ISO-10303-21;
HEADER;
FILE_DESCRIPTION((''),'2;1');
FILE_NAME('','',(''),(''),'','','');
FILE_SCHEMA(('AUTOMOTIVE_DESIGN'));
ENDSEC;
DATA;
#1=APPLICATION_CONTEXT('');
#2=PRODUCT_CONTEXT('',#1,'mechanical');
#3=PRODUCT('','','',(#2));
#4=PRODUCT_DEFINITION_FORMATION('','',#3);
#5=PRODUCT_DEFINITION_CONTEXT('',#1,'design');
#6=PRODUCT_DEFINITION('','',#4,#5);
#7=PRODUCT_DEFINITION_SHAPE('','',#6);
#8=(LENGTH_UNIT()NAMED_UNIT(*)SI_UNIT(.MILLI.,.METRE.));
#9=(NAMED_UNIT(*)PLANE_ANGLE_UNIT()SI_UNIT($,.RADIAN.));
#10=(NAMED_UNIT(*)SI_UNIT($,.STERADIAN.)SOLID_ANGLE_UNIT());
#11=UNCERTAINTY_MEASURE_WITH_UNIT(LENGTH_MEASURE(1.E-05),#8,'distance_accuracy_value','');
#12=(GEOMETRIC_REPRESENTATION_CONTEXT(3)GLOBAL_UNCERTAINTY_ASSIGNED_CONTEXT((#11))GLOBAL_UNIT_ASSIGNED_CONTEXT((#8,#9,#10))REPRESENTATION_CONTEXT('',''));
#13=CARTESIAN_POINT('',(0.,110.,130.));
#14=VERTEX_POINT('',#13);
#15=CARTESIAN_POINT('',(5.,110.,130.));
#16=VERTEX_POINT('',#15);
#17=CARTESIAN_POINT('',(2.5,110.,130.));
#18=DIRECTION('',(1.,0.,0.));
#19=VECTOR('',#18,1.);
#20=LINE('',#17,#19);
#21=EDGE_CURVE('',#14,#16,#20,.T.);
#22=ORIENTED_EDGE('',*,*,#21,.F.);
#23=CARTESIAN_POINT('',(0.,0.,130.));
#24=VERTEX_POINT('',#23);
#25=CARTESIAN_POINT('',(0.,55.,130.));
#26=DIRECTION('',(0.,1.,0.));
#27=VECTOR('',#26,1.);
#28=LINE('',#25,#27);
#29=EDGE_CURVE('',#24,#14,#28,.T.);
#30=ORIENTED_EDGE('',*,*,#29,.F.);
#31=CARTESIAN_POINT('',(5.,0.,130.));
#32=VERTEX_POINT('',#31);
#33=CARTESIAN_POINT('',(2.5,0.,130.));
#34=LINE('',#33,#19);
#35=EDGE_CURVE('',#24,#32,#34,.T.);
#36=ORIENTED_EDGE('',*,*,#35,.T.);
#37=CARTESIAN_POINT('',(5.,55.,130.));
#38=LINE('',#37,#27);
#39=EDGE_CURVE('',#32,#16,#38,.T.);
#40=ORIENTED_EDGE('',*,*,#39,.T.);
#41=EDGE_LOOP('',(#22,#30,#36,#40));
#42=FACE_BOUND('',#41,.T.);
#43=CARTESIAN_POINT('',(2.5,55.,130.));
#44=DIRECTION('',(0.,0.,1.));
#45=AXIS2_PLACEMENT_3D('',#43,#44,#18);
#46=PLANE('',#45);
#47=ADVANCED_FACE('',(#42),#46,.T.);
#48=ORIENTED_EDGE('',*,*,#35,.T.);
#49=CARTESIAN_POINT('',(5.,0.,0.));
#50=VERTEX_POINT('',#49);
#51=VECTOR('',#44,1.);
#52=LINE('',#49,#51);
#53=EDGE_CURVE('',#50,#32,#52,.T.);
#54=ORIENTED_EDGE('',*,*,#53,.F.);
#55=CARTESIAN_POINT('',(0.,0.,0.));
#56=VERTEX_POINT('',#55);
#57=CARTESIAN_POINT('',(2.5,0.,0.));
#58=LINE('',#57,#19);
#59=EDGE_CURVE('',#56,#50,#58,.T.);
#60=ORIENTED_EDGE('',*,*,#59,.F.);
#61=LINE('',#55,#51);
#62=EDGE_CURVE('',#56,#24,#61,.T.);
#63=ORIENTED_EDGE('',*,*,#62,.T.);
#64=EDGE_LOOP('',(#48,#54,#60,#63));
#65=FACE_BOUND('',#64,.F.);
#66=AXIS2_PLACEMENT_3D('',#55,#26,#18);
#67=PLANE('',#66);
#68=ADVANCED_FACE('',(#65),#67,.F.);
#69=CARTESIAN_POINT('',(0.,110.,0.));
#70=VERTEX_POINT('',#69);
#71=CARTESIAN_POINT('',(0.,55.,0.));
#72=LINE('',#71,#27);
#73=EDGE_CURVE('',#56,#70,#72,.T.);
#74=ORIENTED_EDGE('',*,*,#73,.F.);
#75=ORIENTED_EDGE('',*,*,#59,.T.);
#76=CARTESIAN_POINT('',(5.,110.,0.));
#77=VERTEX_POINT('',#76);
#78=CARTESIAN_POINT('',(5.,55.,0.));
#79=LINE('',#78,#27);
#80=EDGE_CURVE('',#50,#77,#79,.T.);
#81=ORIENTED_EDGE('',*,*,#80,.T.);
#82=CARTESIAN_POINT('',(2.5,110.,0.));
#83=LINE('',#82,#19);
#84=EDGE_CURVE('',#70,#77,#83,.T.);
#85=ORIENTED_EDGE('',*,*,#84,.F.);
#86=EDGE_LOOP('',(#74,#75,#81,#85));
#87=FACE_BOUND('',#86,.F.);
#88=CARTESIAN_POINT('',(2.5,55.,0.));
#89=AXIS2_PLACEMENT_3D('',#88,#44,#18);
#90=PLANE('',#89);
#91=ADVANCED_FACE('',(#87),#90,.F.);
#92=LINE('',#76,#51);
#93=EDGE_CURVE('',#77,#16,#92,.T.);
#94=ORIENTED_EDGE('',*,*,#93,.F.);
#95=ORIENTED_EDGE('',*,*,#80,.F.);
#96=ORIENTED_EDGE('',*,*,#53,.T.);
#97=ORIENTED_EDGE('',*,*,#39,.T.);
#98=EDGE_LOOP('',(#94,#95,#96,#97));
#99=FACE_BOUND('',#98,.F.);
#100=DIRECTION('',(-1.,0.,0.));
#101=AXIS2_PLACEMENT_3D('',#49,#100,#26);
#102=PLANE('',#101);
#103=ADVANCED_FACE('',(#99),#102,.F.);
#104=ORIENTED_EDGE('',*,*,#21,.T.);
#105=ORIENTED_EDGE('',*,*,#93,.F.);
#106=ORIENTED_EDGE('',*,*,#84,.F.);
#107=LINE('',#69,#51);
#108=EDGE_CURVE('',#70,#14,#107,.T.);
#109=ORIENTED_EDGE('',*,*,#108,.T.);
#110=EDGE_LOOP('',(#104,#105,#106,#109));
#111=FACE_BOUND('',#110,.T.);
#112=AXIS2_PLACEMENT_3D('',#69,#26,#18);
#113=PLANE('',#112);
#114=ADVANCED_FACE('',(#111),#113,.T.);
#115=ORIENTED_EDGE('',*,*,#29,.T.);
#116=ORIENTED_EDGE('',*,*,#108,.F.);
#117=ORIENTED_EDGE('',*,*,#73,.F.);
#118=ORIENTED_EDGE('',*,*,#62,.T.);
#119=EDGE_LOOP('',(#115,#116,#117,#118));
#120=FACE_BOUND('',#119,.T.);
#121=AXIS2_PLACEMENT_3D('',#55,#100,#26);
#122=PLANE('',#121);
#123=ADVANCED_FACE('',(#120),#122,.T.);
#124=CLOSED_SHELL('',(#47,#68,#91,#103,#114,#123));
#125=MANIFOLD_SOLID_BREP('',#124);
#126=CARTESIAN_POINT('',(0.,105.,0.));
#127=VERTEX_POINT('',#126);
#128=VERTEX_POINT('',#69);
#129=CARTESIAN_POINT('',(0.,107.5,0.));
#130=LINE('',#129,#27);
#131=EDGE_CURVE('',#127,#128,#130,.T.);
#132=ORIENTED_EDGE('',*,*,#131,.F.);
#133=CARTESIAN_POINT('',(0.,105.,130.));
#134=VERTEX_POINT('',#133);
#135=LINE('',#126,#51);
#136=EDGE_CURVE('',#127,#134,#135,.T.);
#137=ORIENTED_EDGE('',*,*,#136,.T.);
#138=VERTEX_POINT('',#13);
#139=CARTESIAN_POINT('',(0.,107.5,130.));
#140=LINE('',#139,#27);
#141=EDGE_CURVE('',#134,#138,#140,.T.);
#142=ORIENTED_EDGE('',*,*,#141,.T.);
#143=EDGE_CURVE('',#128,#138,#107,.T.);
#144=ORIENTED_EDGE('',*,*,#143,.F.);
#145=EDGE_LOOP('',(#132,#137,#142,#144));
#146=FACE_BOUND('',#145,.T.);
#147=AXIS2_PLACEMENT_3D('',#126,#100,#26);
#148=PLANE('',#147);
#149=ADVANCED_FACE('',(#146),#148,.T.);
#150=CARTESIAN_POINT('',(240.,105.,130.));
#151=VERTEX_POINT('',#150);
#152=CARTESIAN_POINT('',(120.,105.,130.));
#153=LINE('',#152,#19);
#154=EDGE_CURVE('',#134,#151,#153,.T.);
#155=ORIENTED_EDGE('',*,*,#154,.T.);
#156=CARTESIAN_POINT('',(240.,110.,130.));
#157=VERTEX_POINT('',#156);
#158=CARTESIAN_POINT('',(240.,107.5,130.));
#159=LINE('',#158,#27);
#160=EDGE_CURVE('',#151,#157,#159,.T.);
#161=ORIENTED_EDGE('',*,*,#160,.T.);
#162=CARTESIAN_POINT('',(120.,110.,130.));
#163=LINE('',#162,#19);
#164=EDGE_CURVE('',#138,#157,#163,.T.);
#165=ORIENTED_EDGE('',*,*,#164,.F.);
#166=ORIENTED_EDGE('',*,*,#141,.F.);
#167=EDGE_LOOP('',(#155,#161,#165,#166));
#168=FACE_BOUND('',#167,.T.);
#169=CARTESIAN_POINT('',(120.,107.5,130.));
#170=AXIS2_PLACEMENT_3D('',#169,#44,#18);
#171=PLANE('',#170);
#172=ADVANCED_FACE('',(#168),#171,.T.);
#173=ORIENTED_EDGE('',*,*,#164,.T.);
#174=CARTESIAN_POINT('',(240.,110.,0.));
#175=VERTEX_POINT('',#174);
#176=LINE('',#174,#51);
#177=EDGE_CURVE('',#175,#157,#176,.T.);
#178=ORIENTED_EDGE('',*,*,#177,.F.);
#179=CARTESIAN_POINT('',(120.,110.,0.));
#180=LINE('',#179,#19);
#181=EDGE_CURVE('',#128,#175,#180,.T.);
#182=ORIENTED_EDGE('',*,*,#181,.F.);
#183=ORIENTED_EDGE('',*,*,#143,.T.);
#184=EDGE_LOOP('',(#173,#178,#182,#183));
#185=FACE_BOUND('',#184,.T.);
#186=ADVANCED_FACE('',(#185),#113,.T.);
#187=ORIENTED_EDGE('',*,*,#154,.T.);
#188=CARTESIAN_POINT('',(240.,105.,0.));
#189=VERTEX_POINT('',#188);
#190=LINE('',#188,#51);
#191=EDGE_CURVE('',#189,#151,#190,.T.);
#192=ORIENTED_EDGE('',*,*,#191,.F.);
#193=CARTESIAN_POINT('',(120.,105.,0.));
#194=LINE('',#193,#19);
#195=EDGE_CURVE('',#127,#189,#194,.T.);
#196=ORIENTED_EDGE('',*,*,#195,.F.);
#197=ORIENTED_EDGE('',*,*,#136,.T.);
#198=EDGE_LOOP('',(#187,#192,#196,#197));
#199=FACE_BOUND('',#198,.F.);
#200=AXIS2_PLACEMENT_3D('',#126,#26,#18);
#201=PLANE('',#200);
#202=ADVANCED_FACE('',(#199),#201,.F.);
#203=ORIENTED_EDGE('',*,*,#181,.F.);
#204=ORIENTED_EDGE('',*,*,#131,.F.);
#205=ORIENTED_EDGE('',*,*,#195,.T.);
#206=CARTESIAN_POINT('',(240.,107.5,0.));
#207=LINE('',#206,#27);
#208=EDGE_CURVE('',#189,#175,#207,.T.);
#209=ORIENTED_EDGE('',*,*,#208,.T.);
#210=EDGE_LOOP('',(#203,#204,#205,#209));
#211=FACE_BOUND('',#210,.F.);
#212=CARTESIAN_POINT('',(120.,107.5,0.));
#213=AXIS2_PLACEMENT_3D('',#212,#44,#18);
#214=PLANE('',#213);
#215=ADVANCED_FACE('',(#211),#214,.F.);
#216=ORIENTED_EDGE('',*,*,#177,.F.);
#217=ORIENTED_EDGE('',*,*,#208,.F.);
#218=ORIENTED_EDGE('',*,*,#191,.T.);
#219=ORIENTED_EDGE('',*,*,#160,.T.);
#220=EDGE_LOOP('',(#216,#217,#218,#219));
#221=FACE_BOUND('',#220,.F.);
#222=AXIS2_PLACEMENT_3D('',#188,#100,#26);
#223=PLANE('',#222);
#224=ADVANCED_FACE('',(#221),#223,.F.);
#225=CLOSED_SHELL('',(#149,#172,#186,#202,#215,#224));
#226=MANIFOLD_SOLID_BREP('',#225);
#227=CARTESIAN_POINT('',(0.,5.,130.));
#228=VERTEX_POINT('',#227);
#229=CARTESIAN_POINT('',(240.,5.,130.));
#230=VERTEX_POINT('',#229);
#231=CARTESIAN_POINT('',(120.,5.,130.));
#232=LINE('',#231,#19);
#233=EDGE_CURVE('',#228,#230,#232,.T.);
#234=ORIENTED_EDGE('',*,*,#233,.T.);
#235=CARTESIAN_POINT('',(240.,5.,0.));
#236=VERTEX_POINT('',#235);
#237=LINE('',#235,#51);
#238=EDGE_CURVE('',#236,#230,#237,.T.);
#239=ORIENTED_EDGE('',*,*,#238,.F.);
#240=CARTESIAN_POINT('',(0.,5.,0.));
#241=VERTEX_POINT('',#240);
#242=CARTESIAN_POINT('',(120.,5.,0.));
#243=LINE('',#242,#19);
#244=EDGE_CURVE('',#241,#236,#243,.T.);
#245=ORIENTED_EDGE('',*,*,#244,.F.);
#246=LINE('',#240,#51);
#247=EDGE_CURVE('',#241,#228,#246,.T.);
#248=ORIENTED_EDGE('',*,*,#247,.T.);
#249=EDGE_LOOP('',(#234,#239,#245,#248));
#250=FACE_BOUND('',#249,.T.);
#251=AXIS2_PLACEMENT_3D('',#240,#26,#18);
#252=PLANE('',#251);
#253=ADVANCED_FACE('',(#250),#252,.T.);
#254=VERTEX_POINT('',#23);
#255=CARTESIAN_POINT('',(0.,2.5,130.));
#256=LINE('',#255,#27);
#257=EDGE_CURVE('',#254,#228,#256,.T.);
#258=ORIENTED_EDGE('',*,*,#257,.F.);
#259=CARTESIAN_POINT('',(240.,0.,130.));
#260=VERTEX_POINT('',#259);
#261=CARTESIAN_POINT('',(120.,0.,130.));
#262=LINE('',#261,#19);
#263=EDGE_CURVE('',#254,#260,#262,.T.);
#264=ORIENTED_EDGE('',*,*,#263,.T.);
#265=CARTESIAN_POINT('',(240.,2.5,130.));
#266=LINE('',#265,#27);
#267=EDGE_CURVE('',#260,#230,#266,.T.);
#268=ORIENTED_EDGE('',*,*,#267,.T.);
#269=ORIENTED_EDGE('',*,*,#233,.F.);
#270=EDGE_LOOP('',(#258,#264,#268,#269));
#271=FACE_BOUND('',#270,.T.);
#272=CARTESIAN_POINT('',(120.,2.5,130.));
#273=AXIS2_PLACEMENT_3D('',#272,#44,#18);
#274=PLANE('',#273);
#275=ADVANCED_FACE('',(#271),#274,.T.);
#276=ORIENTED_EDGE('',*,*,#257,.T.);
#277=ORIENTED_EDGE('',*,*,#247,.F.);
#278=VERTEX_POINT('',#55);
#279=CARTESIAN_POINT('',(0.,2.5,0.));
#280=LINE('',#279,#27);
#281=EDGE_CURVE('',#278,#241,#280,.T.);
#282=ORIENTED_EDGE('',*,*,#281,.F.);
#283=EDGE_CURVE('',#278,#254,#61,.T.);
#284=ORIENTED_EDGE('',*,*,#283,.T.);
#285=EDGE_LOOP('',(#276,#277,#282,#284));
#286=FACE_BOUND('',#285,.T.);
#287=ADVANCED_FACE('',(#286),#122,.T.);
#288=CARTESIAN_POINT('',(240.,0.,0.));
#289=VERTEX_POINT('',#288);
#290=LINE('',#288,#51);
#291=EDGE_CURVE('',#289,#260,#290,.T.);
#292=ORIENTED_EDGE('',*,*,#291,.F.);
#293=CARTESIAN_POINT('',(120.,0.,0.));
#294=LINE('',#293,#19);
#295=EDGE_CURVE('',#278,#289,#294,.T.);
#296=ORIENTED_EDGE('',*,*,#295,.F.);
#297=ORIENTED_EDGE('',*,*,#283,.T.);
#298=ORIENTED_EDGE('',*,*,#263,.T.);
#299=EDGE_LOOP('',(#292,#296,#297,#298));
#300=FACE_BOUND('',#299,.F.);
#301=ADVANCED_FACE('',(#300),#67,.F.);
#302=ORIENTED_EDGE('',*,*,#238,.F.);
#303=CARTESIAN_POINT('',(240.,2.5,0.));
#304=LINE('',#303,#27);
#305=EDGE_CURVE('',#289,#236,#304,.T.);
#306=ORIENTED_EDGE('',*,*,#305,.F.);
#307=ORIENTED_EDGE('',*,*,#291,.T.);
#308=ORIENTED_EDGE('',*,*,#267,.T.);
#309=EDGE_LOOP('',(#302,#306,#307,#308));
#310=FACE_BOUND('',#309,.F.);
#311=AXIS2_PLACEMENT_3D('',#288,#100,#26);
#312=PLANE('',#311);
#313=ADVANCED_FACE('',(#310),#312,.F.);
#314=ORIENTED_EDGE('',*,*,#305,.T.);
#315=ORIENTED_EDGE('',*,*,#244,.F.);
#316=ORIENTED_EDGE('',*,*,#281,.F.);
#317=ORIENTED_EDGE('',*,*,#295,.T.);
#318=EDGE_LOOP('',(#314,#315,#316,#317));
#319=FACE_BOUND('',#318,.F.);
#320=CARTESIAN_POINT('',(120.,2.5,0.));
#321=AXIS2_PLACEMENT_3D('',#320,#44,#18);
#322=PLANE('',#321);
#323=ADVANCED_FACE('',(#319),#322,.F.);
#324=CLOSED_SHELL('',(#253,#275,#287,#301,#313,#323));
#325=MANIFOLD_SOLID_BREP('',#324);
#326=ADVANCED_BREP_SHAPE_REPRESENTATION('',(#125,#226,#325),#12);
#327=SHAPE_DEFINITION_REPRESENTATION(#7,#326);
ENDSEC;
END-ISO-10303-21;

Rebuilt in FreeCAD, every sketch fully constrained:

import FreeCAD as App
import Part
import Sketcher

V = App.Vector


def add_polygon(sketch, points):
    """Adds a closed chain of lines whose ends are joined by coincident constraints."""
    first, n = sketch.GeometryCount, len(points)
    for a, b in zip(points, points[1:] + points[:1]):
        sketch.addGeometry(Part.LineSegment(App.Vector(*a, 0), App.Vector(*b, 0)), False)
    for i in range(n):
        sketch.addConstraint(Sketcher.Constraint("Coincident", first + i, 2, first + (i + 1) % n, 1))

doc = App.newDocument("Part")
body = doc.addObject("PartDesign::Body", "Body")

sketch1 = body.newObject("Sketcher::SketchObject", "Sketch")
sketch1.AttachmentSupport = (doc.getObject("XY_Plane"), [""])
sketch1.MapMode = "FlatFace"
add_polygon(sketch1, [(0, 110), (0, 0), (5, 0), (5, 110)])
sketch1.addConstraint(Sketcher.Constraint("Vertical", 0))
sketch1.addConstraint(Sketcher.Constraint("Horizontal", 1))
sketch1.addConstraint(Sketcher.Constraint("Vertical", 2))
sketch1.addConstraint(Sketcher.Constraint("Horizontal", 3))
sketch1.addConstraint(Sketcher.Constraint("Coincident", 0, 2, -1, 1))
sketch1.addConstraint(Sketcher.Constraint("DistanceX", 1, 1, 1, 2, 5.0))
sketch1.addConstraint(Sketcher.Constraint("DistanceY", 0, 2, 0, 1, 110.0))
pad1 = body.newObject("PartDesign::Pad", "Pad")
pad1.Profile = sketch1
pad1.Length = 130
body2 = doc.addObject("PartDesign::Body", "Body001")

sketch2 = body2.newObject("Sketcher::SketchObject", "Sketch001")
sketch2.AttachmentSupport = (doc.getObject("XY_Plane001"), [""])
sketch2.MapMode = "FlatFace"
add_polygon(sketch2, [(0, 110), (0, 105), (240, 105), (240, 110)])
sketch2.addConstraint(Sketcher.Constraint("Vertical", 0))
sketch2.addConstraint(Sketcher.Constraint("Horizontal", 1))
sketch2.addConstraint(Sketcher.Constraint("Vertical", 2))
sketch2.addConstraint(Sketcher.Constraint("Horizontal", 3))
sketch2.addConstraint(Sketcher.Constraint("PointOnObject", 0, 2, -2))
sketch2.addConstraint(Sketcher.Constraint("DistanceX", 1, 1, 1, 2, 240.0))
sketch2.addConstraint(Sketcher.Constraint("DistanceY", 0, 2, 0, 1, 5.0))
sketch2.addConstraint(Sketcher.Constraint("DistanceY", -1, 1, 0, 2, 105.0))
pad2 = body2.newObject("PartDesign::Pad", "Pad001")
pad2.Profile = sketch2
pad2.Length = 130
body3 = doc.addObject("PartDesign::Body", "Body002")

sketch3 = body3.newObject("Sketcher::SketchObject", "Sketch002")
sketch3.AttachmentSupport = (doc.getObject("XY_Plane002"), [""])
sketch3.MapMode = "FlatFace"
add_polygon(sketch3, [(0, 5), (0, 0), (240, 0), (240, 5)])
sketch3.addConstraint(Sketcher.Constraint("Vertical", 0))
sketch3.addConstraint(Sketcher.Constraint("Horizontal", 1))
sketch3.addConstraint(Sketcher.Constraint("Vertical", 2))
sketch3.addConstraint(Sketcher.Constraint("Horizontal", 3))
sketch3.addConstraint(Sketcher.Constraint("Coincident", 0, 2, -1, 1))
sketch3.addConstraint(Sketcher.Constraint("DistanceX", 1, 1, 1, 2, 240.0))
sketch3.addConstraint(Sketcher.Constraint("DistanceY", 0, 2, 0, 1, 5.0))
pad3 = body3.newObject("PartDesign::Pad", "Pad002")
pad3.Profile = sketch3
pad3.Length = 130

doc.recompute()
